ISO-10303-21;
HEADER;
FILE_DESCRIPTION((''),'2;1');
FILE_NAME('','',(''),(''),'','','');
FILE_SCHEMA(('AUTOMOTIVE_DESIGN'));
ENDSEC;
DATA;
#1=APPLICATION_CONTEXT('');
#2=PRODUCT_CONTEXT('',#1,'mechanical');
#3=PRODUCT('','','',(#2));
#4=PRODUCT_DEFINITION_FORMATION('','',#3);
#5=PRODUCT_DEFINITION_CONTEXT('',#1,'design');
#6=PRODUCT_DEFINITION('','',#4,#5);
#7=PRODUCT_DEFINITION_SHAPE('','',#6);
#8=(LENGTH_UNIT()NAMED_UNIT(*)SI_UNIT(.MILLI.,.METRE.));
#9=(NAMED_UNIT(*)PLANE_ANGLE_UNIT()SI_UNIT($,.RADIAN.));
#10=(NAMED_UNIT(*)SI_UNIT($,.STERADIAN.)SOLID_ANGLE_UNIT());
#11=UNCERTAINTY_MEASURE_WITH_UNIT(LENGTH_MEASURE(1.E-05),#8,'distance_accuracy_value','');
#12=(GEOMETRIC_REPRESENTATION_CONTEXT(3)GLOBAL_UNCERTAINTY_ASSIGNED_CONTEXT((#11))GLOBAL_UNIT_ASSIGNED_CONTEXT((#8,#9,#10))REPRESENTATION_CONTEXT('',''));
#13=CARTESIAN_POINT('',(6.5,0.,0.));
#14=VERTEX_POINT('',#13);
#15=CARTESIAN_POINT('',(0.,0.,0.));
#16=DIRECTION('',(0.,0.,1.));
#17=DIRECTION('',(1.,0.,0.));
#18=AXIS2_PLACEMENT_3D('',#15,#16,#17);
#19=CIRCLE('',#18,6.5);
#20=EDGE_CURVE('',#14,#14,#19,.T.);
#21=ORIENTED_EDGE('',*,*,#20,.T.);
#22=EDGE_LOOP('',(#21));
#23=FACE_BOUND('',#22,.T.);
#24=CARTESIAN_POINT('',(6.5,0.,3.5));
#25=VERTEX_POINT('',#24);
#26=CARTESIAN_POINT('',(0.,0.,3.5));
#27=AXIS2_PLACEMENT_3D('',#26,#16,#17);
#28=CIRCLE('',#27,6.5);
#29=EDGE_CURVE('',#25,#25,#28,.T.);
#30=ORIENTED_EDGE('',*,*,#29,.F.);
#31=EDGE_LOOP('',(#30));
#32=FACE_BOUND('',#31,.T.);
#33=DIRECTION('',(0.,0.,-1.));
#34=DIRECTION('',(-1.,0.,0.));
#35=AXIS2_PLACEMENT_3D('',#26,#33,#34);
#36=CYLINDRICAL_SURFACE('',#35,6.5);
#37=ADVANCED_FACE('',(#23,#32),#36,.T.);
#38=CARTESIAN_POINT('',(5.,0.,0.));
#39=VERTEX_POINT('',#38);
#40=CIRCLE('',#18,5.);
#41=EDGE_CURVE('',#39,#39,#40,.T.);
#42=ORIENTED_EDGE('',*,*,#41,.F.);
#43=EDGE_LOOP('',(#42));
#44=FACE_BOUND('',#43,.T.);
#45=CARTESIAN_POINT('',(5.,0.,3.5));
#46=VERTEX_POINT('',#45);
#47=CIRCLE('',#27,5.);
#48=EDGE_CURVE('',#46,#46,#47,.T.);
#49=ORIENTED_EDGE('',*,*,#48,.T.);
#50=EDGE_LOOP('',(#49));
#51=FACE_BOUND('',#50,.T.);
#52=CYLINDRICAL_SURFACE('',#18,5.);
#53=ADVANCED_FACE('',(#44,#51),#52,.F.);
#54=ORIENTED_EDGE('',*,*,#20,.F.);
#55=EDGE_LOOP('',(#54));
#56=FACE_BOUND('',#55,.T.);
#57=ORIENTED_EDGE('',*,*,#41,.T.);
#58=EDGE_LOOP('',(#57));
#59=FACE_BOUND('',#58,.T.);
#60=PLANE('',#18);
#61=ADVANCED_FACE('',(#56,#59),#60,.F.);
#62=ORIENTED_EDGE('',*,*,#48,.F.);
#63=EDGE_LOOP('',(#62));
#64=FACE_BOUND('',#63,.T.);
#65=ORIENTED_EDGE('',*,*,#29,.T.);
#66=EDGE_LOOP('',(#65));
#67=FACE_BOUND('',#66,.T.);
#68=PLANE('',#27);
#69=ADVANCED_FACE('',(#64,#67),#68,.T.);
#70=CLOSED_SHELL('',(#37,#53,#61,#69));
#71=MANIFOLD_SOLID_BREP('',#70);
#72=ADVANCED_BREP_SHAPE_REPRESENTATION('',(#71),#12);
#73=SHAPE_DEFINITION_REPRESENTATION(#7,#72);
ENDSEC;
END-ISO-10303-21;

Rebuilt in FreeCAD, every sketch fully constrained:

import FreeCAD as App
import Part
import Sketcher
from FreeCAD import Vector
Q = App.Units.Quantity

doc = App.newDocument("Part")
body = doc.addObject("PartDesign::Body", "Body")

sketch1 = body.newObject("Sketcher::SketchObject", "Sketch")
sketch1.AttachmentSupport = (doc.getObject("XY_Plane"), [""])
sketch1.MapMode = "FlatFace"
sketch1.addGeometry(Part.Circle(Vector(0, 0, 0), Vector(0, 0, 1), 6.5), False)
sketch1.addConstraint(Sketcher.Constraint("Coincident", 0, 3, -1, 1))
sketch1.addConstraint(Sketcher.Constraint("Diameter", 0, Q("13 mm")))
pad1 = body.newObject("PartDesign::Pad", "Pad")
pad1.Profile = sketch1
pad1.Length = 3.5

sketch2 = body.newObject("Sketcher::SketchObject", "Sketch001")
sketch2.AttachmentSupport = (doc.getObject("XY_Plane"), [""])
sketch2.MapMode = "FlatFace"
sketch2.AttachmentOffset = App.Placement(Vector(0, 0, 3.5), App.Rotation())
sketch2.addGeometry(Part.Circle(Vector(0, 0, 0), Vector(0, 0, 1), 5), False)
sketch2.addConstraint(Sketcher.Constraint("Coincident", 0, 3, -1, 1))
sketch2.addConstraint(Sketcher.Constraint("Diameter", 0, Q("10 mm")))
pocket1 = body.newObject("PartDesign::Pocket", "Pocket")
pocket1.Profile = sketch2
pocket1.Length = 3.5

doc.recompute()
